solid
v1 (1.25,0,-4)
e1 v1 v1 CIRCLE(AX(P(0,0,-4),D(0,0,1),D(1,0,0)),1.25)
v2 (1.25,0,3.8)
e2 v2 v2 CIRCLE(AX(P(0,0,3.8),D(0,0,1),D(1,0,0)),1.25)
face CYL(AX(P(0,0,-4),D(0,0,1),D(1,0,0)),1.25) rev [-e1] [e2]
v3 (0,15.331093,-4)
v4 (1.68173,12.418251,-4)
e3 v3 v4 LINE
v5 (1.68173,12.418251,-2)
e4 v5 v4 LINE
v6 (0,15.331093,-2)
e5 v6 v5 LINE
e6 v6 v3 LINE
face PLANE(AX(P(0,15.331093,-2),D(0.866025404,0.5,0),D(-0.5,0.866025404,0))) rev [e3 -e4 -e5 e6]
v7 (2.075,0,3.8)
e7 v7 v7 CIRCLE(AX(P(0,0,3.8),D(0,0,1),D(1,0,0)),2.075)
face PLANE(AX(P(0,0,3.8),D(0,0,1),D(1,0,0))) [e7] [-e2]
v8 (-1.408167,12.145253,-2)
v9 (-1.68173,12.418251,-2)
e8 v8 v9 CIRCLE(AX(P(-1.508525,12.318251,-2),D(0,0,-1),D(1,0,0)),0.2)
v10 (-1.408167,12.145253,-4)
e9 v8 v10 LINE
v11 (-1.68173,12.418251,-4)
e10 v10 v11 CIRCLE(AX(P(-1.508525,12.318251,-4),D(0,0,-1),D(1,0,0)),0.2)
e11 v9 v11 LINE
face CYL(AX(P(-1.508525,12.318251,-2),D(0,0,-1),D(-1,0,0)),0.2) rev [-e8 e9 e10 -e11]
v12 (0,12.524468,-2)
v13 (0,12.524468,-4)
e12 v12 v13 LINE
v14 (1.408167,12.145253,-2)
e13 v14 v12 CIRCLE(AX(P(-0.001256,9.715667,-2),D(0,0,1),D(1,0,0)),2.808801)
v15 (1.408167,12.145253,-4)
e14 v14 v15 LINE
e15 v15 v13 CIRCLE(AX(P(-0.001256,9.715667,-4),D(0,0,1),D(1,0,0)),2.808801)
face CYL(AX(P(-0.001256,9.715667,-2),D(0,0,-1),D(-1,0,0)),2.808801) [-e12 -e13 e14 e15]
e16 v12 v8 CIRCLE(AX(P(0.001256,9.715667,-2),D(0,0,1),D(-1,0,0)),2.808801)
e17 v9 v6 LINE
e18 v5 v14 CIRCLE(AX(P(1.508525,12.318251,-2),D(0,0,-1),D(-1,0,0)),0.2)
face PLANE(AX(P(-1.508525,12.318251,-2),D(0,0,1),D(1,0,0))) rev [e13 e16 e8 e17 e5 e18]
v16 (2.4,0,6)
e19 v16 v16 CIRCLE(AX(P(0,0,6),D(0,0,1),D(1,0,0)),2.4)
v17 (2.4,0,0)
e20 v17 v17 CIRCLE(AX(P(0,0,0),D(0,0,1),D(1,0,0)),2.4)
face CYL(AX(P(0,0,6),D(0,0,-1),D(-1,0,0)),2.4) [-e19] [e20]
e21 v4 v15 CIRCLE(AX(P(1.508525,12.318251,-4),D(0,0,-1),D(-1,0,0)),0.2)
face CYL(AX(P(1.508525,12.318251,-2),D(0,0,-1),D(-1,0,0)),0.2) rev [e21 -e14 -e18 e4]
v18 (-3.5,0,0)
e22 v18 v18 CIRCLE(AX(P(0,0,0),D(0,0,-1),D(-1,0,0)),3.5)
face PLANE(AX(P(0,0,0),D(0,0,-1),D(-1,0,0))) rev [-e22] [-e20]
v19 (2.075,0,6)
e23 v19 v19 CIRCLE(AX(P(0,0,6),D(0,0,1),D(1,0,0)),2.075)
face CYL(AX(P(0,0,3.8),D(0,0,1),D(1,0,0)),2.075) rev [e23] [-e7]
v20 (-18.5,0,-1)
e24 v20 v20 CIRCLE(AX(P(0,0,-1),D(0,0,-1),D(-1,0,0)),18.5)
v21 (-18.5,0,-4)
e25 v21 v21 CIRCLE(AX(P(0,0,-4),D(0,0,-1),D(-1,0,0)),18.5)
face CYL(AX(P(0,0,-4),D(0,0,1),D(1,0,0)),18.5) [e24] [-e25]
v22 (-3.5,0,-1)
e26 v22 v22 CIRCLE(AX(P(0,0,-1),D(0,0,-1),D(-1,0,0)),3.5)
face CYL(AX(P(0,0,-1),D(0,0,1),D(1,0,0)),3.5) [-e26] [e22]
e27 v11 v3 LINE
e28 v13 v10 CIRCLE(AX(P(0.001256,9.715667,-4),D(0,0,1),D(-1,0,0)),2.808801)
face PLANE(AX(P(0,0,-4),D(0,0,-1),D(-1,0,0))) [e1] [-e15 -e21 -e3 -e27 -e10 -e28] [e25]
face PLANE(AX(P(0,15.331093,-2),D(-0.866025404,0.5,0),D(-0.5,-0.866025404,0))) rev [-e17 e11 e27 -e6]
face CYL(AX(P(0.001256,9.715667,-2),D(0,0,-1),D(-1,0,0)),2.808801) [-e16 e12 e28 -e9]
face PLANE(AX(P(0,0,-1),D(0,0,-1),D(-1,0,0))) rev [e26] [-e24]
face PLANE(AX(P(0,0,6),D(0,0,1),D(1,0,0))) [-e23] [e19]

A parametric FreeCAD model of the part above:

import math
import FreeCAD as App
import Part
import Sketcher
from FreeCAD import Vector
Q = App.Units.Quantity

doc = App.newDocument("Part")
params = doc.addObject("Spreadsheet::Sheet", "Params")
for row, (alias, value) in enumerate([
    ("sketch1_diameter", "4.8 mm"),
    ("pad1_length", "6 mm"),
    ("sketch2_diameter", "7 mm"),
    ("pad2_length", "1 mm"),
    ("sketch3_diameter", "37 mm"),
    ("pad3_length", "3 mm"),
    ("sketch4_radius", "0.2 mm"),
    ("pocket1_length", "2 mm"),
    ("sketch5_diameter", "4.15 mm"),
    ("pocket2_length", "2.2 mm"),
    ("sketch6_diameter", "2.5 mm"),
], start=1):
    params.set(f"A{row}", alias)
    params.set(f"B{row}", "=" + value)
    params.setAlias(f"B{row}", alias)

body = doc.addObject("PartDesign::Body", "Body")

sketch1 = doc.addObject("Sketcher::SketchObject", "Sketch")
body.addObject(sketch1)
sketch1.AttachmentSupport = (doc.XY_Plane, [""])
sketch1.MapMode = "FlatFace"
sketch1.addGeometry(Part.Circle(Vector(0, 0, 0), Vector(0, 0, 1), 2.4), False)
sketch1.addConstraint([
    Sketcher.Constraint("Coincident", 0, 3, -1, 1),
    Sketcher.Constraint("Diameter", 0, 4.8),
])
sketch1.setExpression("Constraints[1]", "Params.sketch1_diameter")
pad1 = doc.addObject("PartDesign::Pad", "Pad")
body.addObject(pad1)
pad1.Profile = sketch1
pad1.setExpression("Length", "Params.pad1_length")

sketch2 = doc.addObject("Sketcher::SketchObject", "Sketch001")
body.addObject(sketch2)
sketch2.AttachmentSupport = (doc.XY_Plane, [""])
sketch2.MapMode = "FlatFace"
sketch2.addGeometry(Part.Circle(Vector(0, 0, 0), Vector(0, 0, 1), 3.5), False)
sketch2.addConstraint([
    Sketcher.Constraint("Coincident", 0, 3, -1, 1),
    Sketcher.Constraint("Diameter", 0, 7.0),
])
sketch2.setExpression("Constraints[1]", "Params.sketch2_diameter")
pad2 = doc.addObject("PartDesign::Pad", "Pad001")
body.addObject(pad2)
pad2.Profile = sketch2
pad2.setExpression("Length", "Params.pad2_length")
pad2.Reversed = True

sketch3 = doc.addObject("Sketcher::SketchObject", "Sketch002")
body.addObject(sketch3)
sketch3.AttachmentSupport = (doc.XY_Plane, [""])
sketch3.MapMode = "FlatFace"
sketch3.AttachmentOffset = App.Placement(Vector(0, 0, -1), App.Rotation())
sketch3.addGeometry(Part.Circle(Vector(0, 0, 0), Vector(0, 0, 1), 18), False)
sketch3.addConstraint([
    Sketcher.Constraint("Coincident", 0, 3, -1, 1),
    Sketcher.Constraint("Diameter", 0, 37.0),
])
sketch3.setExpression("Constraints[1]", "Params.sketch3_diameter")
pad3 = doc.addObject("PartDesign::Pad", "Pad002")
body.addObject(pad3)
pad3.Profile = sketch3
pad3.setExpression("Length", "Params.pad3_length")
pad3.Reversed = True

sketch4 = doc.addObject("Sketcher::SketchObject", "Sketch003")
body.addObject(sketch4)
sketch4.AttachmentSupport = (doc.XY_Plane, [""])
sketch4.MapMode = "FlatFace"
sketch4.AttachmentOffset = App.Placement(Vector(0, 0, -4), App.Rotation())
sketch4.addGeometry([
    Part.LineSegment(Vector(0, 15.33, 0), Vector(1.68, 12.42, 0)),
    Part.ArcOfCircle(Part.Circle(Vector(1.51, 12.32, 0), Vector(0, 0, 1), 0.2), math.radians(-120), math.radians(30)),
    Part.ArcOfCircle(Part.Circle(Vector(0, 9.72, 0), Vector(0, 0, 1), 2.81), math.radians(60), math.radians(90)),
    Part.ArcOfCircle(Part.Circle(Vector(0, 9.72, 0), Vector(0, 0, 1), 2.81), math.radians(90), math.radians(120)),
    Part.ArcOfCircle(Part.Circle(Vector(-1.51, 12.32, 0), Vector(0, 0, 1), 0.2), math.radians(150), math.radians(300)),
    Part.LineSegment(Vector(-1.68, 12.42, 0), Vector(0, 15.33, 0)),
], False)
sketch4.addConstraint([
    Sketcher.Constraint("Tangent", 0, 2, 1, 2),
    Sketcher.Constraint("Tangent", 1, 1, 2, 1),
    Sketcher.Constraint("Coincident", 2, 2, 3, 1),
    Sketcher.Constraint("Tangent", 3, 2, 4, 2),
    Sketcher.Constraint("Tangent", 4, 1, 5, 1),
    Sketcher.Constraint("Coincident", 5, 2, 0, 1),
    Sketcher.Constraint("Equal", 2, 3),
    Sketcher.Constraint("Equal", 1, 4),
    Sketcher.Constraint("Symmetric", 1, 3, 4, 3, -2),
    Sketcher.Constraint("PointOnObject", 2, 2, -2),
    Sketcher.Constraint("PointOnObject", 5, 2, -2),
    Sketcher.Constraint("Radius", 1, 0.2),
    Sketcher.Constraint("Angle", 0, Q("-60 deg")),
    Sketcher.Constraint("Radius", 2, 2.808801),
    Sketcher.Constraint("DistanceY", 1, 1, 1, 3, 0.172998),
    Sketcher.Constraint("Distance", 0, 3.36346),
    Sketcher.Constraint("DistanceY", -1, 1, 1, 3, 12.318251),
])
sketch4.setExpression("Constraints[11]", "Params.sketch4_radius")
pocket1 = doc.addObject("PartDesign::Pocket", "Pocket")
body.addObject(pocket1)
pocket1.Profile = sketch4
pocket1.setExpression("Length", "Params.pocket1_length")
pocket1.Reversed = True

sketch5 = doc.addObject("Sketcher::SketchObject", "Sketch004")
body.addObject(sketch5)
sketch5.AttachmentSupport = (doc.XY_Plane, [""])
sketch5.MapMode = "FlatFace"
sketch5.AttachmentOffset = App.Placement(Vector(0, 0, 6), App.Rotation())
sketch5.addGeometry(Part.Circle(Vector(0, 0, 0), Vector(0, 0, 1), 2.1), False)
sketch5.addConstraint([
    Sketcher.Constraint("Coincident", 0, 3, -1, 1),
    Sketcher.Constraint("Diameter", 0, 4.15),
])
sketch5.setExpression("Constraints[1]", "Params.sketch5_diameter")
pocket2 = doc.addObject("PartDesign::Pocket", "Pocket001")
body.addObject(pocket2)
pocket2.Profile = sketch5
pocket2.setExpression("Length", "Params.pocket2_length")

sketch6 = doc.addObject("Sketcher::SketchObject", "Sketch005")
body.addObject(sketch6)
sketch6.AttachmentSupport = (doc.XY_Plane, [""])
sketch6.MapMode = "FlatFace"
sketch6.AttachmentOffset = App.Placement(Vector(0, 0, 3.8), App.Rotation())
sketch6.addGeometry(Part.Circle(Vector(0, 0, 0), Vector(0, 0, 1), 1.2), False)
sketch6.addConstraint([
    Sketcher.Constraint("Coincident", 0, 3, -1, 1),
    Sketcher.Constraint("Diameter", 0, 2.5),
])
sketch6.setExpression("Constraints[1]", "Params.sketch6_diameter")
pocket3 = doc.addObject("PartDesign::Pocket", "Pocket002")
body.addObject(pocket3)
pocket3.Profile = sketch6
pocket3.Type = "ThroughAll"

doc.recompute()
